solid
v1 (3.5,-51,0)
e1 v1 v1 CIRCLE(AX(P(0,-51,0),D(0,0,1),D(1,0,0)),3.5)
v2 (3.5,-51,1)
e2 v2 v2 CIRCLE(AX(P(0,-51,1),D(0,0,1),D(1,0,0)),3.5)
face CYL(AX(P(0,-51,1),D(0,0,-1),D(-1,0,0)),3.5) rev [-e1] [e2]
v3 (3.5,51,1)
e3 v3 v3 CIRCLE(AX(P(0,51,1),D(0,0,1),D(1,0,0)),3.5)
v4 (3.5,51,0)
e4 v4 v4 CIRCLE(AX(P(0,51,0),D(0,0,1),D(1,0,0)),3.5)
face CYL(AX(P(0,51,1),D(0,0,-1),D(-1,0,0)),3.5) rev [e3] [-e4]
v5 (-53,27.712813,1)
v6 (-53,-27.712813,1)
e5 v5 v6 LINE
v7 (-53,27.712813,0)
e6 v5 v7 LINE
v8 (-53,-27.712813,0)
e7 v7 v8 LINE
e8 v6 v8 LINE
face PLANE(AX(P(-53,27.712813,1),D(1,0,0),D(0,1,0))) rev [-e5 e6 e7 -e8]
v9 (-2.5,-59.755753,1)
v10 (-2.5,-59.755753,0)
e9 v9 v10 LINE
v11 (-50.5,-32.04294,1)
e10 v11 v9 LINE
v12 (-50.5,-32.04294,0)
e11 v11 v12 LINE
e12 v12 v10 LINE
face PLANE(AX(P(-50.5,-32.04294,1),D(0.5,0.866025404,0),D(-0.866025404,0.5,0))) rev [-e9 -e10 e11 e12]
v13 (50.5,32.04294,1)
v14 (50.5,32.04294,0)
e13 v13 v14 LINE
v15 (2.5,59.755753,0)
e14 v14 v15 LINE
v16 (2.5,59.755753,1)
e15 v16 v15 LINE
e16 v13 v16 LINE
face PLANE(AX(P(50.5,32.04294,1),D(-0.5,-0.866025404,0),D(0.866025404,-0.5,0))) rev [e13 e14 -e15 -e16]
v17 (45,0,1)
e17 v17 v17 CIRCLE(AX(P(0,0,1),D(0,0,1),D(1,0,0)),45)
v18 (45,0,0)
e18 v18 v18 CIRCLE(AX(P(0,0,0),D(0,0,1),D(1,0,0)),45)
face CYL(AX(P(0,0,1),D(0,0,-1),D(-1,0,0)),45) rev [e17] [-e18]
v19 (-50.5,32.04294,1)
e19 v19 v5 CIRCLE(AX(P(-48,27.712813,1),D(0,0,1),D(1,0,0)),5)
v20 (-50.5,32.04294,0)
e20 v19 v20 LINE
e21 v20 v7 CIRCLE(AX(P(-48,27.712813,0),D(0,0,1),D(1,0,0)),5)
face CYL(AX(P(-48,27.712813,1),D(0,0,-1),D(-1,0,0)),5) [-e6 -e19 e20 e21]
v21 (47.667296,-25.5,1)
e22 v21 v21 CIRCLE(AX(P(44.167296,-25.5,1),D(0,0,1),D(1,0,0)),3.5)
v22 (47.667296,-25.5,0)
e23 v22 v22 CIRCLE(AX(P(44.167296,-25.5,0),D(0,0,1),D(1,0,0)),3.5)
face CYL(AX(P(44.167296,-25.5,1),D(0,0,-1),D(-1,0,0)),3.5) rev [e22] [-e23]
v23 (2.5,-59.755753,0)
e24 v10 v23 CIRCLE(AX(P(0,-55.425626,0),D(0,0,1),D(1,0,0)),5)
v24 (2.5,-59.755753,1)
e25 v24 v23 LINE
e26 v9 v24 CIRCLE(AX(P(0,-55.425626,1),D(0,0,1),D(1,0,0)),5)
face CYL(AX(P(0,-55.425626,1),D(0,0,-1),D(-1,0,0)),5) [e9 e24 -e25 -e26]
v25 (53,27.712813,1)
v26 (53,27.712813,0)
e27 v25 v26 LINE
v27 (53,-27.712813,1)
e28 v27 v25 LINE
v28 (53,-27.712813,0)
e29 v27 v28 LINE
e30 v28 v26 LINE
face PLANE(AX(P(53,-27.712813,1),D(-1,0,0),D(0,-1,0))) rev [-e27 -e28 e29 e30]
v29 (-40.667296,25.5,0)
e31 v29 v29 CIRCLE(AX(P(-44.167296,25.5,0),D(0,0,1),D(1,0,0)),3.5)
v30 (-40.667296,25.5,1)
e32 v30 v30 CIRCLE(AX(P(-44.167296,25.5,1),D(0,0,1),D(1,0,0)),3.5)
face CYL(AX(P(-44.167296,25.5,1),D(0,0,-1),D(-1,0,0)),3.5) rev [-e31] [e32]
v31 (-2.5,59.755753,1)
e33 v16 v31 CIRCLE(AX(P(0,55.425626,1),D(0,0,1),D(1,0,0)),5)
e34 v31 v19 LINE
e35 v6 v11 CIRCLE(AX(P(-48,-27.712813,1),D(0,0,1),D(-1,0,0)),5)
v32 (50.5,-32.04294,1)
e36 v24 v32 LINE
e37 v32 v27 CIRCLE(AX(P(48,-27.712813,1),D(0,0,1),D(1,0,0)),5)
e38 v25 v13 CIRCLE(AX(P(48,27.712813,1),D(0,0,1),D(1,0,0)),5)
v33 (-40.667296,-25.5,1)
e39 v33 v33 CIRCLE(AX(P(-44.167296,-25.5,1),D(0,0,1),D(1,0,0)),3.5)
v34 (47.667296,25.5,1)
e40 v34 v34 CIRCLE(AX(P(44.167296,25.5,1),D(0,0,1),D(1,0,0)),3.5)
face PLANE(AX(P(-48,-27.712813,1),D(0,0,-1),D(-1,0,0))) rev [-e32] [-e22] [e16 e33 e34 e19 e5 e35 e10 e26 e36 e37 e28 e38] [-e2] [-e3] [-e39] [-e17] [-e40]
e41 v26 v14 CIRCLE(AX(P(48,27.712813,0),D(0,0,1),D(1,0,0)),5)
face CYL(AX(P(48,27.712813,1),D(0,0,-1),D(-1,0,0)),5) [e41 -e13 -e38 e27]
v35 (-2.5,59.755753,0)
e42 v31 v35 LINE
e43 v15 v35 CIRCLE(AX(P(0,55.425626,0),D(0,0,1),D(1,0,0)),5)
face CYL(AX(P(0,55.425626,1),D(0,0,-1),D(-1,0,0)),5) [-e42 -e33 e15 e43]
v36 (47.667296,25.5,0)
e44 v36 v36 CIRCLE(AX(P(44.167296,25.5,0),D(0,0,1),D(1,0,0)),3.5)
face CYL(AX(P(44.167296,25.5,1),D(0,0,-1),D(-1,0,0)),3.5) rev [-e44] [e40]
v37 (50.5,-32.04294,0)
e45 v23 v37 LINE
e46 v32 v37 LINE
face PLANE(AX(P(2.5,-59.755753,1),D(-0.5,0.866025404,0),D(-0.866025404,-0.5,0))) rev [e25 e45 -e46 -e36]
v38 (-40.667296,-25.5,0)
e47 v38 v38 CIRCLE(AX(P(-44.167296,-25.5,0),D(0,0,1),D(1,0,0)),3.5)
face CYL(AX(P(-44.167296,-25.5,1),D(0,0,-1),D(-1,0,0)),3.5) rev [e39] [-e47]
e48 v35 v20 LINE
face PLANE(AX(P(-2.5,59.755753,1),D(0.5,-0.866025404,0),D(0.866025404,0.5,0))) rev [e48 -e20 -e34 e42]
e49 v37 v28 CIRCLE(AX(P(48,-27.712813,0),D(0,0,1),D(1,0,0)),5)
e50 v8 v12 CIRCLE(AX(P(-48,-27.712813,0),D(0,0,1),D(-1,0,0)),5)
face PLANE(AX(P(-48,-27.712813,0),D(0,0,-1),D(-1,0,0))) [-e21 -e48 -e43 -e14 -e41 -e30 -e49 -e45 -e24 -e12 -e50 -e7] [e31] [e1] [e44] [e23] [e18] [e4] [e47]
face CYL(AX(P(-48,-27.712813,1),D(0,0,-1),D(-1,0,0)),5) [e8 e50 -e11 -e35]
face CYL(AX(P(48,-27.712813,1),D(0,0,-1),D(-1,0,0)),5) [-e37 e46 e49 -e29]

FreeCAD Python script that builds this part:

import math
import FreeCAD as App
import Part
import Sketcher
from FreeCAD import Vector
Q = App.Units.Quantity

doc = App.newDocument("Part")
body = doc.addObject("PartDesign::Body", "Body")

sketch1 = doc.addObject("Sketcher::SketchObject", "Sketch")
body.addObject(sketch1)
sketch1.AttachmentSupport = (doc.XY_Plane, [""])
sketch1.MapMode = "FlatFace"
sketch1.addGeometry(Part.LineSegment(Vector(-50.5, -32.04294, 0), Vector(-2.5, -59.755753, 0)), False)
sketch1.addGeometry(Part.ArcOfCircle(Part.Circle(Vector(0, -55.425626, 0), Vector(0, 0, 1), 5), math.radians(-120), math.radians(-60)), False)
sketch1.addGeometry(Part.LineSegment(Vector(2.5, -59.755753, 0), Vector(50.5, -32.04294, 0)), False)
sketch1.addGeometry(Part.ArcOfCircle(Part.Circle(Vector(48, -27.712813, 0), Vector(0, 0, 1), 5), math.radians(-60), math.radians(0)), False)
sketch1.addGeometry(Part.LineSegment(Vector(53, -27.712813, 0), Vector(53, 27.712813, 0)), False)
sketch1.addGeometry(Part.ArcOfCircle(Part.Circle(Vector(48, 27.712813, 0), Vector(0, 0, 1), 5), math.radians(0), math.radians(60)), False)
sketch1.addGeometry(Part.LineSegment(Vector(50.5, 32.04294, 0), Vector(2.5, 59.755753, 0)), False)
sketch1.addGeometry(Part.ArcOfCircle(Part.Circle(Vector(0, 55.425626, 0), Vector(0, 0, 1), 5), math.radians(60), math.radians(120)), False)
sketch1.addGeometry(Part.LineSegment(Vector(-2.5, 59.755753, 0), Vector(-50.5, 32.04294, 0)), False)
sketch1.addGeometry(Part.ArcOfCircle(Part.Circle(Vector(-48, 27.712813, 0), Vector(0, 0, 1), 5), math.radians(120), math.radians(180)), False)
sketch1.addGeometry(Part.LineSegment(Vector(-53, 27.712813, 0), Vector(-53, -27.712813, 0)), False)
sketch1.addGeometry(Part.ArcOfCircle(Part.Circle(Vector(-48, -27.712813, 0), Vector(0, 0, 1), 5), math.radians(180), math.radians(240)), False)
sketch1.addGeometry(Part.Circle(Vector(-44.167296, -25.5, 0), Vector(0, 0, 1), 3.5), False)
sketch1.addGeometry(Part.Circle(Vector(0, -51, 0), Vector(0, 0, 1), 3.5), False)
sketch1.addGeometry(Part.Circle(Vector(44.167296, -25.5, 0), Vector(0, 0, 1), 3.5), False)
sketch1.addGeometry(Part.Circle(Vector(-44.167296, 25.5, 0), Vector(0, 0, 1), 3.5), False)
sketch1.addGeometry(Part.Circle(Vector(0, 0, 0), Vector(0, 0, 1), 45), False)
sketch1.addGeometry(Part.Circle(Vector(44.167296, 25.5, 0), Vector(0, 0, 1), 3.5), False)
sketch1.addGeometry(Part.Circle(Vector(0, 51, 0), Vector(0, 0, 1), 3.5), False)
sketch1.addConstraint(Sketcher.Constraint("Tangent", 0, 2, 1, 1))
sketch1.addConstraint(Sketcher.Constraint("Tangent", 1, 2, 2, 1))
sketch1.addConstraint(Sketcher.Constraint("Tangent", 2, 2, 3, 1))
sketch1.addConstraint(Sketcher.Constraint("Tangent", 3, 2, 4, 1))
sketch1.addConstraint(Sketcher.Constraint("Tangent", 4, 2, 5, 1))
sketch1.addConstraint(Sketcher.Constraint("Tangent", 5, 2, 6, 1))
sketch1.addConstraint(Sketcher.Constraint("Tangent", 6, 2, 7, 1))
sketch1.addConstraint(Sketcher.Constraint("Tangent", 7, 2, 8, 1))
sketch1.addConstraint(Sketcher.Constraint("Tangent", 8, 2, 9, 1))
sketch1.addConstraint(Sketcher.Constraint("Tangent", 9, 2, 10, 1))
sketch1.addConstraint(Sketcher.Constraint("Tangent", 10, 2, 11, 1))
sketch1.addConstraint(Sketcher.Constraint("Tangent", 11, 2, 0, 1))
sketch1.addConstraint(Sketcher.Constraint("Vertical", 4))
sketch1.addConstraint(Sketcher.Constraint("Vertical", 10))
sketch1.addConstraint(Sketcher.Constraint("Coincident", 16, 3, -1, 1))
sketch1.addConstraint(Sketcher.Constraint("Equal", 1, 3))
sketch1.addConstraint(Sketcher.Constraint("Equal", 3, 5))
sketch1.addConstraint(Sketcher.Constraint("Equal", 5, 7))
sketch1.addConstraint(Sketcher.Constraint("Equal", 7, 9))
sketch1.addConstraint(Sketcher.Constraint("Equal", 9, 11))
sketch1.addConstraint(Sketcher.Constraint("Equal", 12, 13))
sketch1.addConstraint(Sketcher.Constraint("Equal", 13, 14))
sketch1.addConstraint(Sketcher.Constraint("Equal", 14, 15))
sketch1.addConstraint(Sketcher.Constraint("Equal", 15, 17))
sketch1.addConstraint(Sketcher.Constraint("Equal", 17, 18))
sketch1.addConstraint(Sketcher.Constraint("Symmetric", 1, 3, 7, 3, -1, 1))
sketch1.addConstraint(Sketcher.Constraint("Symmetric", 3, 3, 9, 3, -1, 1))
sketch1.addConstraint(Sketcher.Constraint("Symmetric", 14, 3, 15, 3, -1, 1))
sketch1.addConstraint(Sketcher.Constraint("Symmetric", 12, 3, 17, 3, -1, 1))
sketch1.addConstraint(Sketcher.Constraint("Symmetric", 13, 3, 18, 3, -1, 1))
sketch1.addConstraint(Sketcher.Constraint("Symmetric", 12, 3, 14, 3, -2))
sketch1.addConstraint(Sketcher.Constraint("Symmetric", 0, 2, 1, 2, -2))
sketch1.addConstraint(Sketcher.Constraint("PointOnObject", 13, 3, -2))
sketch1.addConstraint(Sketcher.Constraint("Parallel", 0, 6))
sketch1.addConstraint(Sketcher.Constraint("Diameter", 12, 7.0))
sketch1.addConstraint(Sketcher.Constraint("Diameter", 16, 90.0))
sketch1.addConstraint(Sketcher.Constraint("Radius", 1, 5.0))
sketch1.addConstraint(Sketcher.Constraint("Angle", 0, Q("-30 deg")))
sketch1.addConstraint(Sketcher.Constraint("DistanceX", -1, 1, 3, 3, 48.0))
sketch1.addConstraint(Sketcher.Constraint("DistanceY", 13, 3, -1, 1, 51.0))
sketch1.addConstraint(Sketcher.Constraint("DistanceY", 12, 3, 15, 3, 51.0))
sketch1.addConstraint(Sketcher.Constraint("DistanceY", 4, 1, 4, 2, 55.425626))
sketch1.addConstraint(Sketcher.Constraint("DistanceX", 12, 3, 14, 3, 88.334591))
pad1 = doc.addObject("PartDesign::Pad", "Pad")
body.addObject(pad1)
pad1.Profile = sketch1
pad1.Length = 1

doc.recompute()
